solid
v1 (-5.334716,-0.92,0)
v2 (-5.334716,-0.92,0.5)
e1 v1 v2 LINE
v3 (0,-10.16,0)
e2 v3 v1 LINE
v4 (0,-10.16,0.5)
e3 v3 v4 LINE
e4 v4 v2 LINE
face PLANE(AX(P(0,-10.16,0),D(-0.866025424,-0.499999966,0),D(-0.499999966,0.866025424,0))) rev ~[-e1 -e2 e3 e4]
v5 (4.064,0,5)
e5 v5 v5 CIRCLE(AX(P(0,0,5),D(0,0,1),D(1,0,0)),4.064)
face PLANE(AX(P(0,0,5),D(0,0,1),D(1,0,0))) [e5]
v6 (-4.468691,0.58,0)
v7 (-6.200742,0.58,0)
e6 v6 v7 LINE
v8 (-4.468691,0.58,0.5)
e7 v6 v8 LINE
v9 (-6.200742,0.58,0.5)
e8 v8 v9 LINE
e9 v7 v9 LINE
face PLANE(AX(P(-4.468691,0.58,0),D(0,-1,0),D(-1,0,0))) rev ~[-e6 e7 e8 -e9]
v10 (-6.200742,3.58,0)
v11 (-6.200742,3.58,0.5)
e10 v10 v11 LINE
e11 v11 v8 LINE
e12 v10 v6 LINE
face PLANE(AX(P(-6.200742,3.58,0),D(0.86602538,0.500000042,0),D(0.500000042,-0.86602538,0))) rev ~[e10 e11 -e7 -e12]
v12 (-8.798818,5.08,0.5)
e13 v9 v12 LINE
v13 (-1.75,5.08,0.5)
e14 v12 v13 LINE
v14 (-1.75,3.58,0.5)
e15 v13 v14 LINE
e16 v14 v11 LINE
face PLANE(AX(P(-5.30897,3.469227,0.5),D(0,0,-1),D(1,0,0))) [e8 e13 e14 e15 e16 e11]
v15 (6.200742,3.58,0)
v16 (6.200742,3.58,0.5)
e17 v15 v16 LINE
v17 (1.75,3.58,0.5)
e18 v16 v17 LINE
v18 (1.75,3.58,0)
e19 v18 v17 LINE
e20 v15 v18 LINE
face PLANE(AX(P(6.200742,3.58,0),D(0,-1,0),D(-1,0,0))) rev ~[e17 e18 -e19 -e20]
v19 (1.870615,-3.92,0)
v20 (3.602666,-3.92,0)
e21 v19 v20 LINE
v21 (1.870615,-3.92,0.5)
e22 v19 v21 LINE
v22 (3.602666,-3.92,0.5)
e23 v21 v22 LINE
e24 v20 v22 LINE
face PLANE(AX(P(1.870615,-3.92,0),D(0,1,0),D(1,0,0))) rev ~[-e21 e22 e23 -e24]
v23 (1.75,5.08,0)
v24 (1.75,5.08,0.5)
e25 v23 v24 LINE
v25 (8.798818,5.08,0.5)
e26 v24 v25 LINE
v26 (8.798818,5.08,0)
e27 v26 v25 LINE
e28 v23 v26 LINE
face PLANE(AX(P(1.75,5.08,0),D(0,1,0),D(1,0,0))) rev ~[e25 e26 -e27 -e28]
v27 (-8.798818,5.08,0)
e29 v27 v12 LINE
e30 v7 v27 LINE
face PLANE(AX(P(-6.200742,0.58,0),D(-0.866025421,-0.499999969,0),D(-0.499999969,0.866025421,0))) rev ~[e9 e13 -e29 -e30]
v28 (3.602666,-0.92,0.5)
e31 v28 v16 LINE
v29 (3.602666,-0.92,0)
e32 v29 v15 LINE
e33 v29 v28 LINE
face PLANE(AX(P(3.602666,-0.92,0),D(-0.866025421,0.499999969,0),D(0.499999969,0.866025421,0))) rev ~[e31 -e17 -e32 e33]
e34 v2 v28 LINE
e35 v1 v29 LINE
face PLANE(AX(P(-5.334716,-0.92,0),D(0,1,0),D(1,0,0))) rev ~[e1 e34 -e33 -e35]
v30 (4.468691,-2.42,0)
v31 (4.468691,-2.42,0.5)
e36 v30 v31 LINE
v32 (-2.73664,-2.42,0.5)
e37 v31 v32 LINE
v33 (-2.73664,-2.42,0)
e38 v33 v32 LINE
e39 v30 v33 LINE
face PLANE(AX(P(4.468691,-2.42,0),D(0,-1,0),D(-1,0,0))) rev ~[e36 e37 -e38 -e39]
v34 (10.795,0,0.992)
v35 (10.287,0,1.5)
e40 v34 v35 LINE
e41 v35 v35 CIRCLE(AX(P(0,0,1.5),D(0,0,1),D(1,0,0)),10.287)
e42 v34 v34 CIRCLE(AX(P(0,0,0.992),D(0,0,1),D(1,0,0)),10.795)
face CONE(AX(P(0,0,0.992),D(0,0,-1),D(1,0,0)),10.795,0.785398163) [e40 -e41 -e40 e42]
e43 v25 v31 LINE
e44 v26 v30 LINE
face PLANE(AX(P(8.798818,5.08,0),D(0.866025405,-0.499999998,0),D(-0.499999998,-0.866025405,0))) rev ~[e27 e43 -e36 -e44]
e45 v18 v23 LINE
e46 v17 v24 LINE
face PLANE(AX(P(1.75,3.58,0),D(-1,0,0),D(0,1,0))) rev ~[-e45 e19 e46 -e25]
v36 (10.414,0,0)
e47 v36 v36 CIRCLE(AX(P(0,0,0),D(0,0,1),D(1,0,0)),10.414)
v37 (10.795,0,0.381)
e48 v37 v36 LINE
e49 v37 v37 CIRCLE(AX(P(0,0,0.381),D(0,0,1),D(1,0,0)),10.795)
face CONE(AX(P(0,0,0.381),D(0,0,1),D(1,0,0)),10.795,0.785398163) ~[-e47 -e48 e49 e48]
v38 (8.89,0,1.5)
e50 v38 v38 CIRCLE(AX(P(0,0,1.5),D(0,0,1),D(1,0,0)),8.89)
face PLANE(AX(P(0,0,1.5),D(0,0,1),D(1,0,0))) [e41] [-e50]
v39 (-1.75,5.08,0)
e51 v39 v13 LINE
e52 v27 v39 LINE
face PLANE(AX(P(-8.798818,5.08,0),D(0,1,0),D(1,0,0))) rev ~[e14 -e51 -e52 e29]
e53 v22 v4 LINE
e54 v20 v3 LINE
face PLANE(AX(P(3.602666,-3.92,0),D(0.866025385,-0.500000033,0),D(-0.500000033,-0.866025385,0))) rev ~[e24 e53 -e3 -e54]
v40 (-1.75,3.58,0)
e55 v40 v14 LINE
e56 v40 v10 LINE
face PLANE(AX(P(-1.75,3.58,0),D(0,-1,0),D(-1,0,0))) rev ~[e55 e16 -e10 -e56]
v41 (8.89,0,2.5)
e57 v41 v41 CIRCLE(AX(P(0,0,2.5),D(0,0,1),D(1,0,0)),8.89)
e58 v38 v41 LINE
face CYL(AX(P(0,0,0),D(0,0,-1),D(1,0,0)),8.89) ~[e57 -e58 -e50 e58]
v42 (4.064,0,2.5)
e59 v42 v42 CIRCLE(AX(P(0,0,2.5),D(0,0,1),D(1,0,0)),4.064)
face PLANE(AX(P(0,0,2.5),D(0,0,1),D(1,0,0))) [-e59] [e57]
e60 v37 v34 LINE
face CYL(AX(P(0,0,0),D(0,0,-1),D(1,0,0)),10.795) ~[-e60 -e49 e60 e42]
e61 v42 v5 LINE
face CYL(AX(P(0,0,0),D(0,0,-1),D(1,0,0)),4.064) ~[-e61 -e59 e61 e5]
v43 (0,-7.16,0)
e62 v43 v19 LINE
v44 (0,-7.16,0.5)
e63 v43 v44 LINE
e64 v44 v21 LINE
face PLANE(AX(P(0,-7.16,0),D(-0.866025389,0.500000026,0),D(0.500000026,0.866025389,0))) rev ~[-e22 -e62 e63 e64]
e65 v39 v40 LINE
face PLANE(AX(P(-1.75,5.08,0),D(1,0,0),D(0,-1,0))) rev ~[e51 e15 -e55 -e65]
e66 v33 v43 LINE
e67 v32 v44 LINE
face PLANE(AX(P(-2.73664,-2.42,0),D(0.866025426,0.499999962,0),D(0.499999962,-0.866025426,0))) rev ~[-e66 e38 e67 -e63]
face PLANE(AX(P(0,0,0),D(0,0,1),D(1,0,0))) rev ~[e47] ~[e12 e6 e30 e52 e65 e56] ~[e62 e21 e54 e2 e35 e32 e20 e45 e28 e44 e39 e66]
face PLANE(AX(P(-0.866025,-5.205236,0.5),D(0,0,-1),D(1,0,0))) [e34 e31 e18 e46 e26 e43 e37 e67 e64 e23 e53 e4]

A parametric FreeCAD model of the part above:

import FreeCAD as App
import Part
import Sketcher

V = App.Vector
Q = App.Units.Quantity


def edges_at(feature, points):
    """Names of the edges that pass closest to the given points."""
    edges = feature.Shape.Edges
    near = lambda p: min(range(len(edges)), key=lambda i: edges[i].distToShape(Part.Vertex(*p))[0])
    return sorted({f"Edge{near(p) + 1}" for p in points})


def add_polygon(sketch, points):
    """Adds a closed chain of lines whose ends are joined by coincident constraints."""
    first, n = sketch.GeometryCount, len(points)
    for a, b in zip(points, points[1:] + points[:1]):
        sketch.addGeometry(Part.LineSegment(App.Vector(*a, 0), App.Vector(*b, 0)), False)
    for i in range(n):
        sketch.addConstraint(Sketcher.Constraint("Coincident", first + i, 2, first + (i + 1) % n, 1))

doc = App.newDocument("Part")
body = doc.addObject("PartDesign::Body", "Body")

# Sketch on XY plane
sketch1 = doc.addObject("Sketcher::SketchObject", "Sketch")
body.addObject(sketch1)
sketch1.AttachmentSupport = (doc.XY_Plane, [""])
sketch1.MapMode = "FlatFace"
sketch1.addGeometry(Part.Circle(V(0, 0, 0), V(0, 0, 1), 4.1), False)
sketch1.addConstraint(Sketcher.Constraint("Coincident", 0, 3, -1, 1))
sketch1.addConstraint(Sketcher.Constraint("Diameter", 0, Q("0.32 in")))
pad1 = doc.addObject("PartDesign::Pad", "Pad")
body.addObject(pad1)
pad1.Profile = sketch1
pad1.Length = 5

# Sketch on XY plane
sketch2 = doc.addObject("Sketcher::SketchObject", "Sketch001")
body.addObject(sketch2)
sketch2.AttachmentSupport = (doc.XY_Plane, [""])
sketch2.MapMode = "FlatFace"
sketch2.addGeometry(Part.Circle(V(0, 0, 0), V(0, 0, 1), 8.9), False)
sketch2.addGeometry(Part.Circle(V(0, 0, 0), V(0, 0, 1), 4.1), False)
sketch2.addConstraint(Sketcher.Constraint("Coincident", 0, 3, -1, 1))
sketch2.addConstraint(Sketcher.Constraint("Coincident", 1, 3, -1, 1))
sketch2.addConstraint(Sketcher.Constraint("Diameter", 0, Q("0.7 in")))
sketch2.addConstraint(Sketcher.Constraint("Diameter", 1, Q("0.32 in")))
pad2 = doc.addObject("PartDesign::Pad", "Pad001")
body.addObject(pad2)
pad2.Profile = sketch2
pad2.Length = 2.5

# Sketch on XY plane
sketch3 = doc.addObject("Sketcher::SketchObject", "Sketch002")
body.addObject(sketch3)
sketch3.AttachmentSupport = (doc.XY_Plane, [""])
sketch3.MapMode = "FlatFace"
sketch3.addGeometry(Part.Circle(V(0, 0, 0), V(0, 0, 1), 11), False)
sketch3.addGeometry(Part.Circle(V(0, 0, 0), V(0, 0, 1), 9), False)
sketch3.addConstraint(Sketcher.Constraint("Coincident", 0, 3, -1, 1))
sketch3.addConstraint(Sketcher.Constraint("Coincident", 1, 3, -1, 1))
sketch3.addConstraint(Sketcher.Constraint("Diameter", 1, Q("0.7 in")))
sketch3.addConstraint(Sketcher.Constraint("Diameter", 0, Q("0.85 in")))
pad3 = doc.addObject("PartDesign::Pad", "Pad002")
body.addObject(pad3)
pad3.Profile = sketch3
pad3.Length = 1.5

# Sketch on XY plane
sketch4 = doc.addObject("Sketcher::SketchObject", "Sketch003")
body.addObject(sketch4)
sketch4.AttachmentSupport = (doc.XY_Plane, [""])
sketch4.MapMode = "FlatFace"
add_polygon(sketch4, [(-6.2, 0.6), (-8.8, 5.1), (-1.8, 5.1), (-1.8, 3.6), (-6.2, 3.6), (-4.5, 0.6)])  # lines 0-5
add_polygon(sketch4, [(0, -10.2), (-5.3, -0.9), (3.6, -0.9), (6.2, 3.6), (1.8, 3.6), (1.8, 5.1), (8.8, 5.1), (4.5, -2.4), (-2.7, -2.4), (0, -7.2), (1.9, -3.9), (3.6, -3.9)])  # lines 6-17
sketch4.addConstraint(Sketcher.Constraint("Horizontal", 1))
sketch4.addConstraint(Sketcher.Constraint("Vertical", 2))
sketch4.addConstraint(Sketcher.Constraint("Horizontal", 3))
sketch4.addConstraint(Sketcher.Constraint("Horizontal", 5))
sketch4.addConstraint(Sketcher.Constraint("Horizontal", 7))
sketch4.addConstraint(Sketcher.Constraint("Horizontal", 9))
sketch4.addConstraint(Sketcher.Constraint("Vertical", 10))
sketch4.addConstraint(Sketcher.Constraint("Horizontal", 11))
sketch4.addConstraint(Sketcher.Constraint("Horizontal", 13))
sketch4.addConstraint(Sketcher.Constraint("Horizontal", 16))
sketch4.addConstraint(Sketcher.Constraint("Symmetric", 3, 2, 8, 2, -2))
sketch4.addConstraint(Sketcher.Constraint("Symmetric", 1, 2, 10, 2, -2))
sketch4.addConstraint(Sketcher.Constraint("PointOnObject", 14, 2, -2))
sketch4.addConstraint(Sketcher.Constraint("PointOnObject", 17, 2, -2))
sketch4.addConstraint(Sketcher.Constraint("Parallel", 0, 4))
sketch4.addConstraint(Sketcher.Constraint("Parallel", 4, 6))
sketch4.addConstraint(Sketcher.Constraint("Parallel", 8, 12))
sketch4.addConstraint(Sketcher.Constraint("Parallel", 6, 14))
sketch4.addConstraint(Sketcher.Constraint("Parallel", 12, 15))
sketch4.addConstraint(Sketcher.Constraint("Parallel", 15, 17))
sketch4.addConstraint(Sketcher.Constraint("Vertical", 3, 2, 5, 2))
sketch4.addConstraint(Sketcher.Constraint("Vertical", 7, 2, 16, 2))
sketch4.addConstraint(Sketcher.Constraint("Equal", 1, 11))
sketch4.addConstraint(Sketcher.Constraint("Equal", 5, 16))
sketch4.addConstraint(Sketcher.Constraint("Equal", 0, 8))
sketch4.addConstraint(Sketcher.Constraint("Angle", 0, Q("119.999998 deg")))
sketch4.addConstraint(Sketcher.Constraint("Angle", 8, Q("60.000002 deg")))
sketch4.addConstraint(Sketcher.Constraint("DistanceY", -1, 1, 0, 2, Q("0.2 in")))
sketch4.addConstraint(Sketcher.Constraint("DistanceY", 17, 2, -1, 1, Q("0.4 in")))
sketch4.addConstraint(Sketcher.Constraint("DistanceY", 2, 2, 2, 1, Q("1.5 mm")))
sketch4.addConstraint(Sketcher.Constraint("Distance", 4, Q("3.464102 mm")))
sketch4.addConstraint(Sketcher.Constraint("DistanceX", 1, 1, 1, 2, Q("7.048818 mm")))
sketch4.addConstraint(Sketcher.Constraint("DistanceX", 13, 2, 13, 1, Q("7.205331 mm")))
sketch4.addConstraint(Sketcher.Constraint("DistanceX", 1, 2, -1, 1, Q("1.75 mm")))
pocket1 = doc.addObject("PartDesign::Pocket", "Pocket")
body.addObject(pocket1)
pocket1.Profile = sketch4
pocket1.Length = 0.5
pocket1.Reversed = True
doc.recompute()

chamfer = doc.addObject("PartDesign::Chamfer", "Chamfer")
body.addObject(chamfer)
chamfer.Base = (pocket1, edges_at(pocket1, [(-10.795, 0, 1.5)]))
chamfer.Size = Q("0.02 in")
doc.recompute()

chamfer2 = doc.addObject("PartDesign::Chamfer", "Chamfer001")
body.addObject(chamfer2)
chamfer2.Base = (chamfer, edges_at(chamfer, [(-10.795, 0, 0)]))
chamfer2.Size = Q("0.015 in")

doc.recompute()
